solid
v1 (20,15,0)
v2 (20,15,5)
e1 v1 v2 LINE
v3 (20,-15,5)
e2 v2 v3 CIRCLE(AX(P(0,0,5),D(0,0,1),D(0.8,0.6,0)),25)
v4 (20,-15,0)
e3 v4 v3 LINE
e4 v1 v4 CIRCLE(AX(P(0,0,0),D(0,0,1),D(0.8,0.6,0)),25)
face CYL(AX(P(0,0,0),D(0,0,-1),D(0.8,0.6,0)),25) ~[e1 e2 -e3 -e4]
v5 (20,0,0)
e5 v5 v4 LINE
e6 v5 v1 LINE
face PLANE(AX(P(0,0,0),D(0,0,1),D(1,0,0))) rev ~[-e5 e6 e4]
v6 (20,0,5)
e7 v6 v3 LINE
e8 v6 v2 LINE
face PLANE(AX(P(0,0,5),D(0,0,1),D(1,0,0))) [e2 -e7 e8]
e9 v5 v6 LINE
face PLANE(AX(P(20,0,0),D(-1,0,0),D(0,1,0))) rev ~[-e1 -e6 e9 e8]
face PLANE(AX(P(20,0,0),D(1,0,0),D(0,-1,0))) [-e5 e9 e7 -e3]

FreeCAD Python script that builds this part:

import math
import FreeCAD as App
import Part
import Sketcher

V = App.Vector
Q = App.Units.Quantity

doc = App.newDocument("Part")
params = doc.addObject("Spreadsheet::Sheet", "Params")
for row, (alias, value) in enumerate([
    ("sketch1_radius", "25 mm"),
    ("sketch1_height", "30 mm"),
    ("pad1_length", "5 mm"),
], start=1):
    params.set(f"A{row}", alias)
    params.set(f"B{row}", "=" + value)
    params.setAlias(f"B{row}", alias)

body = doc.addObject("PartDesign::Body", "Body")

sketch1 = doc.addObject("Sketcher::SketchObject", "Sketch")
body.addObject(sketch1)
sketch1.AttachmentSupport = (doc.XY_Plane, [""])
sketch1.MapMode = "FlatFace"
sketch1.addGeometry(Part.LineSegment(V(20, -15, 0), V(20, 15, 0)), False)
sketch1.addGeometry(Part.ArcOfCircle(Part.Circle(V(0, 0, 0), V(0, 0, 1), 25), math.radians(36.869898), math.radians(323.130102)), False)
sketch1.addConstraint(Sketcher.Constraint("Coincident", 0, 1, 1, 2))
sketch1.addConstraint(Sketcher.Constraint("Coincident", 1, 1, 0, 2))
sketch1.addConstraint(Sketcher.Constraint("Vertical", 0))
sketch1.addConstraint(Sketcher.Constraint("Coincident", 1, 3, -1, 1))
sketch1.addConstraint(Sketcher.Constraint("Radius", 1, Q("25 mm")))
sketch1.addConstraint(Sketcher.Constraint("DistanceY", 0, 1, 0, 2, Q("30 mm")))
sketch1.setExpression("Constraints[4]", "Params.sketch1_radius")
sketch1.setExpression("Constraints[5]", "Params.sketch1_height")
pad1 = doc.addObject("PartDesign::Pad", "Pad")
body.addObject(pad1)
pad1.Profile = sketch1
pad1.setExpression("Length", "Params.pad1_length")

doc.recompute()
